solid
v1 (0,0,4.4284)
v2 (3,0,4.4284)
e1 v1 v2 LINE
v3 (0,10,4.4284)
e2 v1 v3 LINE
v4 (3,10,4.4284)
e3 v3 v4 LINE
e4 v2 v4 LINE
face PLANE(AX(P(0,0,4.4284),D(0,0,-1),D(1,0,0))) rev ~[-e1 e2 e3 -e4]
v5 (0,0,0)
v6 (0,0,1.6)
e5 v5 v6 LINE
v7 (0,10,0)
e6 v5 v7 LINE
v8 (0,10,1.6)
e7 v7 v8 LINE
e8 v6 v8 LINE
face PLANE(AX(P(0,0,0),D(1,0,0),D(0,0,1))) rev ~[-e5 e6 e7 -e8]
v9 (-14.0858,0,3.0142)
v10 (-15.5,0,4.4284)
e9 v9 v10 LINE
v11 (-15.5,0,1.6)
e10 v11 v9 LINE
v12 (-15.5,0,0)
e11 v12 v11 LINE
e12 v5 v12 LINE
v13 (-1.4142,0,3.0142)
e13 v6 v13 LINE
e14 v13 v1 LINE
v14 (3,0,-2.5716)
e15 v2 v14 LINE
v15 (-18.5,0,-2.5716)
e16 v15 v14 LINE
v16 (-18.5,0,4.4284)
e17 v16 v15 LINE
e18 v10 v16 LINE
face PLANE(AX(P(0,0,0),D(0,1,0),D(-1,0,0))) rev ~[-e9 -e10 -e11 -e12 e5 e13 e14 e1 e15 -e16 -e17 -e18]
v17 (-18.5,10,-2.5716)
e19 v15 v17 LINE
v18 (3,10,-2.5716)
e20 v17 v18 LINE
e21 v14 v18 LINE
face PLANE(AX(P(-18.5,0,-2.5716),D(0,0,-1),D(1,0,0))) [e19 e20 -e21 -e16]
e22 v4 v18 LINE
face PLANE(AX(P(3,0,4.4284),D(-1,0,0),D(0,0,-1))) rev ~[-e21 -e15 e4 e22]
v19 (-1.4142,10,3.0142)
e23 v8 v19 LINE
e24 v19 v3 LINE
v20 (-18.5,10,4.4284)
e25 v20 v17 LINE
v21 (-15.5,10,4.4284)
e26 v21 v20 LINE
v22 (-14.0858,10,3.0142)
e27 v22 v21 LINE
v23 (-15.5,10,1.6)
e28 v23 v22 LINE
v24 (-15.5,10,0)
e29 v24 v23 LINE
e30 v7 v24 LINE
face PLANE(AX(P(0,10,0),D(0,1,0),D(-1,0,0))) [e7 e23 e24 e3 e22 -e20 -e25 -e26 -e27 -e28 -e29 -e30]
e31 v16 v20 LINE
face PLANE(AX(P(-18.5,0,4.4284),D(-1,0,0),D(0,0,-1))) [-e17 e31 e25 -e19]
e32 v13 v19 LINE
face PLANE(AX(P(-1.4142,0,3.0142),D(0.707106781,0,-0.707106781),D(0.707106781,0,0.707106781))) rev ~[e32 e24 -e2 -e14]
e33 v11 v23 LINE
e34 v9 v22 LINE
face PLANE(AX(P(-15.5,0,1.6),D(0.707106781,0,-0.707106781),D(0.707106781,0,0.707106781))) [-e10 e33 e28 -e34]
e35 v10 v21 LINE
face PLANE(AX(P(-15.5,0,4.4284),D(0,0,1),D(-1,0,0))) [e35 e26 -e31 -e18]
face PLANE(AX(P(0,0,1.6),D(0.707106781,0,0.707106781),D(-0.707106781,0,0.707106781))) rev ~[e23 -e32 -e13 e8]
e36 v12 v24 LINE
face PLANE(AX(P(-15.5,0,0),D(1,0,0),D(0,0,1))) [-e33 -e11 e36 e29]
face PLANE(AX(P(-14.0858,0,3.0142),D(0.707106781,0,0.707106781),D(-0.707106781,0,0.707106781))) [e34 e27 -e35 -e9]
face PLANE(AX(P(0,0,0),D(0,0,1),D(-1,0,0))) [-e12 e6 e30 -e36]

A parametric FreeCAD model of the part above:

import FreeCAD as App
import Part
import Sketcher
from FreeCAD import Vector
Q = App.Units.Quantity

doc = App.newDocument("Part")
body = doc.addObject("PartDesign::Body", "Body")

# Sketch on XZ plane
sketch1 = body.newObject("Sketcher::SketchObject", "Sketch")
sketch1.AttachmentSupport = (doc.getObject("XZ_Plane"), [""])
sketch1.MapMode = "FlatFace"
sketch1.addGeometry([
    Part.LineSegment(Vector(-15.5, 0, 0), Vector(0, 0, 0)),  # 0
    Part.LineSegment(Vector(0, 0, 0), Vector(0, 1.6, 0)),  # 1
    Part.LineSegment(Vector(0, 1.6, 0), Vector(-1.4, 3, 0)),  # 2
    Part.LineSegment(Vector(-1.4, 3, 0), Vector(0, 4.4, 0)),  # 3
    Part.LineSegment(Vector(0, 4.4, 0), Vector(3, 4.4, 0)),  # 4
    Part.LineSegment(Vector(3, 4.4, 0), Vector(3, -2.6, 0)),  # 5
    Part.LineSegment(Vector(3, -2.6, 0), Vector(-18.5, -2.6, 0)),  # 6
    Part.LineSegment(Vector(-18.5, -2.6, 0), Vector(-18.5, 4.4, 0)),  # 7
    Part.LineSegment(Vector(-18.5, 4.4, 0), Vector(-15.5, 4.4, 0)),  # 8
    Part.LineSegment(Vector(-15.5, 4.4, 0), Vector(-14.1, 3, 0)),  # 9
    Part.LineSegment(Vector(-14.1, 3, 0), Vector(-15.5, 1.6, 0)),  # 10
    Part.LineSegment(Vector(-15.5, 1.6, 0), Vector(-15.5, 0, 0)),  # 11
], False)
sketch1.addConstraint([
    Sketcher.Constraint("Coincident", 0, 2, 1, 1),
    Sketcher.Constraint("Coincident", 1, 2, 2, 1),
    Sketcher.Constraint("Coincident", 2, 2, 3, 1),
    Sketcher.Constraint("Coincident", 3, 2, 4, 1),
    Sketcher.Constraint("Coincident", 4, 2, 5, 1),
    Sketcher.Constraint("Coincident", 5, 2, 6, 1),
    Sketcher.Constraint("Coincident", 6, 2, 7, 1),
    Sketcher.Constraint("Coincident", 7, 2, 8, 1),
    Sketcher.Constraint("Coincident", 8, 2, 9, 1),
    Sketcher.Constraint("Coincident", 9, 2, 10, 1),
    Sketcher.Constraint("Coincident", 10, 2, 11, 1),
    Sketcher.Constraint("Coincident", 11, 2, 0, 1),
    Sketcher.Constraint("Horizontal", 0),
    Sketcher.Constraint("Vertical", 1),
    Sketcher.Constraint("Horizontal", 4),
    Sketcher.Constraint("Vertical", 5),
    Sketcher.Constraint("Horizontal", 6),
    Sketcher.Constraint("Vertical", 7),
    Sketcher.Constraint("Horizontal", 8),
    Sketcher.Constraint("Vertical", 11),
    Sketcher.Constraint("Coincident", 0, 2, -1, 1),
    Sketcher.Constraint("PointOnObject", 3, 2, -2),
    Sketcher.Constraint("Perpendicular", 2, 3),
    Sketcher.Constraint("Perpendicular", 3, 9),
    Sketcher.Constraint("Perpendicular", 9, 10),
    Sketcher.Constraint("Horizontal", 4, 2, 7, 2),
    Sketcher.Constraint("Horizontal", 2, 2, 9, 2),
    Sketcher.Constraint("Horizontal", 1, 2, 10, 2),
    Sketcher.Constraint("Vertical", 8, 2, 10, 2),
    Sketcher.Constraint("Equal", 4, 8),
    Sketcher.Constraint("DistanceX", 4, 1, 4, 2, Q("3 mm")),
    Sketcher.Constraint("DistanceY", 5, 2, 5, 1, Q("7 mm")),
    Sketcher.Constraint("Distance", 2, Q("2 mm")),
    Sketcher.Constraint("DistanceX", 0, 1, 0, 2, Q("15.5 mm")),
    Sketcher.Constraint("DistanceY", 1, 1, 1, 2, Q("1.6 mm")),
])
pad1 = body.newObject("PartDesign::Pad", "Pad")
pad1.Profile = sketch1
pad1.Length = 10
pad1.Reversed = True

doc.recompute()
